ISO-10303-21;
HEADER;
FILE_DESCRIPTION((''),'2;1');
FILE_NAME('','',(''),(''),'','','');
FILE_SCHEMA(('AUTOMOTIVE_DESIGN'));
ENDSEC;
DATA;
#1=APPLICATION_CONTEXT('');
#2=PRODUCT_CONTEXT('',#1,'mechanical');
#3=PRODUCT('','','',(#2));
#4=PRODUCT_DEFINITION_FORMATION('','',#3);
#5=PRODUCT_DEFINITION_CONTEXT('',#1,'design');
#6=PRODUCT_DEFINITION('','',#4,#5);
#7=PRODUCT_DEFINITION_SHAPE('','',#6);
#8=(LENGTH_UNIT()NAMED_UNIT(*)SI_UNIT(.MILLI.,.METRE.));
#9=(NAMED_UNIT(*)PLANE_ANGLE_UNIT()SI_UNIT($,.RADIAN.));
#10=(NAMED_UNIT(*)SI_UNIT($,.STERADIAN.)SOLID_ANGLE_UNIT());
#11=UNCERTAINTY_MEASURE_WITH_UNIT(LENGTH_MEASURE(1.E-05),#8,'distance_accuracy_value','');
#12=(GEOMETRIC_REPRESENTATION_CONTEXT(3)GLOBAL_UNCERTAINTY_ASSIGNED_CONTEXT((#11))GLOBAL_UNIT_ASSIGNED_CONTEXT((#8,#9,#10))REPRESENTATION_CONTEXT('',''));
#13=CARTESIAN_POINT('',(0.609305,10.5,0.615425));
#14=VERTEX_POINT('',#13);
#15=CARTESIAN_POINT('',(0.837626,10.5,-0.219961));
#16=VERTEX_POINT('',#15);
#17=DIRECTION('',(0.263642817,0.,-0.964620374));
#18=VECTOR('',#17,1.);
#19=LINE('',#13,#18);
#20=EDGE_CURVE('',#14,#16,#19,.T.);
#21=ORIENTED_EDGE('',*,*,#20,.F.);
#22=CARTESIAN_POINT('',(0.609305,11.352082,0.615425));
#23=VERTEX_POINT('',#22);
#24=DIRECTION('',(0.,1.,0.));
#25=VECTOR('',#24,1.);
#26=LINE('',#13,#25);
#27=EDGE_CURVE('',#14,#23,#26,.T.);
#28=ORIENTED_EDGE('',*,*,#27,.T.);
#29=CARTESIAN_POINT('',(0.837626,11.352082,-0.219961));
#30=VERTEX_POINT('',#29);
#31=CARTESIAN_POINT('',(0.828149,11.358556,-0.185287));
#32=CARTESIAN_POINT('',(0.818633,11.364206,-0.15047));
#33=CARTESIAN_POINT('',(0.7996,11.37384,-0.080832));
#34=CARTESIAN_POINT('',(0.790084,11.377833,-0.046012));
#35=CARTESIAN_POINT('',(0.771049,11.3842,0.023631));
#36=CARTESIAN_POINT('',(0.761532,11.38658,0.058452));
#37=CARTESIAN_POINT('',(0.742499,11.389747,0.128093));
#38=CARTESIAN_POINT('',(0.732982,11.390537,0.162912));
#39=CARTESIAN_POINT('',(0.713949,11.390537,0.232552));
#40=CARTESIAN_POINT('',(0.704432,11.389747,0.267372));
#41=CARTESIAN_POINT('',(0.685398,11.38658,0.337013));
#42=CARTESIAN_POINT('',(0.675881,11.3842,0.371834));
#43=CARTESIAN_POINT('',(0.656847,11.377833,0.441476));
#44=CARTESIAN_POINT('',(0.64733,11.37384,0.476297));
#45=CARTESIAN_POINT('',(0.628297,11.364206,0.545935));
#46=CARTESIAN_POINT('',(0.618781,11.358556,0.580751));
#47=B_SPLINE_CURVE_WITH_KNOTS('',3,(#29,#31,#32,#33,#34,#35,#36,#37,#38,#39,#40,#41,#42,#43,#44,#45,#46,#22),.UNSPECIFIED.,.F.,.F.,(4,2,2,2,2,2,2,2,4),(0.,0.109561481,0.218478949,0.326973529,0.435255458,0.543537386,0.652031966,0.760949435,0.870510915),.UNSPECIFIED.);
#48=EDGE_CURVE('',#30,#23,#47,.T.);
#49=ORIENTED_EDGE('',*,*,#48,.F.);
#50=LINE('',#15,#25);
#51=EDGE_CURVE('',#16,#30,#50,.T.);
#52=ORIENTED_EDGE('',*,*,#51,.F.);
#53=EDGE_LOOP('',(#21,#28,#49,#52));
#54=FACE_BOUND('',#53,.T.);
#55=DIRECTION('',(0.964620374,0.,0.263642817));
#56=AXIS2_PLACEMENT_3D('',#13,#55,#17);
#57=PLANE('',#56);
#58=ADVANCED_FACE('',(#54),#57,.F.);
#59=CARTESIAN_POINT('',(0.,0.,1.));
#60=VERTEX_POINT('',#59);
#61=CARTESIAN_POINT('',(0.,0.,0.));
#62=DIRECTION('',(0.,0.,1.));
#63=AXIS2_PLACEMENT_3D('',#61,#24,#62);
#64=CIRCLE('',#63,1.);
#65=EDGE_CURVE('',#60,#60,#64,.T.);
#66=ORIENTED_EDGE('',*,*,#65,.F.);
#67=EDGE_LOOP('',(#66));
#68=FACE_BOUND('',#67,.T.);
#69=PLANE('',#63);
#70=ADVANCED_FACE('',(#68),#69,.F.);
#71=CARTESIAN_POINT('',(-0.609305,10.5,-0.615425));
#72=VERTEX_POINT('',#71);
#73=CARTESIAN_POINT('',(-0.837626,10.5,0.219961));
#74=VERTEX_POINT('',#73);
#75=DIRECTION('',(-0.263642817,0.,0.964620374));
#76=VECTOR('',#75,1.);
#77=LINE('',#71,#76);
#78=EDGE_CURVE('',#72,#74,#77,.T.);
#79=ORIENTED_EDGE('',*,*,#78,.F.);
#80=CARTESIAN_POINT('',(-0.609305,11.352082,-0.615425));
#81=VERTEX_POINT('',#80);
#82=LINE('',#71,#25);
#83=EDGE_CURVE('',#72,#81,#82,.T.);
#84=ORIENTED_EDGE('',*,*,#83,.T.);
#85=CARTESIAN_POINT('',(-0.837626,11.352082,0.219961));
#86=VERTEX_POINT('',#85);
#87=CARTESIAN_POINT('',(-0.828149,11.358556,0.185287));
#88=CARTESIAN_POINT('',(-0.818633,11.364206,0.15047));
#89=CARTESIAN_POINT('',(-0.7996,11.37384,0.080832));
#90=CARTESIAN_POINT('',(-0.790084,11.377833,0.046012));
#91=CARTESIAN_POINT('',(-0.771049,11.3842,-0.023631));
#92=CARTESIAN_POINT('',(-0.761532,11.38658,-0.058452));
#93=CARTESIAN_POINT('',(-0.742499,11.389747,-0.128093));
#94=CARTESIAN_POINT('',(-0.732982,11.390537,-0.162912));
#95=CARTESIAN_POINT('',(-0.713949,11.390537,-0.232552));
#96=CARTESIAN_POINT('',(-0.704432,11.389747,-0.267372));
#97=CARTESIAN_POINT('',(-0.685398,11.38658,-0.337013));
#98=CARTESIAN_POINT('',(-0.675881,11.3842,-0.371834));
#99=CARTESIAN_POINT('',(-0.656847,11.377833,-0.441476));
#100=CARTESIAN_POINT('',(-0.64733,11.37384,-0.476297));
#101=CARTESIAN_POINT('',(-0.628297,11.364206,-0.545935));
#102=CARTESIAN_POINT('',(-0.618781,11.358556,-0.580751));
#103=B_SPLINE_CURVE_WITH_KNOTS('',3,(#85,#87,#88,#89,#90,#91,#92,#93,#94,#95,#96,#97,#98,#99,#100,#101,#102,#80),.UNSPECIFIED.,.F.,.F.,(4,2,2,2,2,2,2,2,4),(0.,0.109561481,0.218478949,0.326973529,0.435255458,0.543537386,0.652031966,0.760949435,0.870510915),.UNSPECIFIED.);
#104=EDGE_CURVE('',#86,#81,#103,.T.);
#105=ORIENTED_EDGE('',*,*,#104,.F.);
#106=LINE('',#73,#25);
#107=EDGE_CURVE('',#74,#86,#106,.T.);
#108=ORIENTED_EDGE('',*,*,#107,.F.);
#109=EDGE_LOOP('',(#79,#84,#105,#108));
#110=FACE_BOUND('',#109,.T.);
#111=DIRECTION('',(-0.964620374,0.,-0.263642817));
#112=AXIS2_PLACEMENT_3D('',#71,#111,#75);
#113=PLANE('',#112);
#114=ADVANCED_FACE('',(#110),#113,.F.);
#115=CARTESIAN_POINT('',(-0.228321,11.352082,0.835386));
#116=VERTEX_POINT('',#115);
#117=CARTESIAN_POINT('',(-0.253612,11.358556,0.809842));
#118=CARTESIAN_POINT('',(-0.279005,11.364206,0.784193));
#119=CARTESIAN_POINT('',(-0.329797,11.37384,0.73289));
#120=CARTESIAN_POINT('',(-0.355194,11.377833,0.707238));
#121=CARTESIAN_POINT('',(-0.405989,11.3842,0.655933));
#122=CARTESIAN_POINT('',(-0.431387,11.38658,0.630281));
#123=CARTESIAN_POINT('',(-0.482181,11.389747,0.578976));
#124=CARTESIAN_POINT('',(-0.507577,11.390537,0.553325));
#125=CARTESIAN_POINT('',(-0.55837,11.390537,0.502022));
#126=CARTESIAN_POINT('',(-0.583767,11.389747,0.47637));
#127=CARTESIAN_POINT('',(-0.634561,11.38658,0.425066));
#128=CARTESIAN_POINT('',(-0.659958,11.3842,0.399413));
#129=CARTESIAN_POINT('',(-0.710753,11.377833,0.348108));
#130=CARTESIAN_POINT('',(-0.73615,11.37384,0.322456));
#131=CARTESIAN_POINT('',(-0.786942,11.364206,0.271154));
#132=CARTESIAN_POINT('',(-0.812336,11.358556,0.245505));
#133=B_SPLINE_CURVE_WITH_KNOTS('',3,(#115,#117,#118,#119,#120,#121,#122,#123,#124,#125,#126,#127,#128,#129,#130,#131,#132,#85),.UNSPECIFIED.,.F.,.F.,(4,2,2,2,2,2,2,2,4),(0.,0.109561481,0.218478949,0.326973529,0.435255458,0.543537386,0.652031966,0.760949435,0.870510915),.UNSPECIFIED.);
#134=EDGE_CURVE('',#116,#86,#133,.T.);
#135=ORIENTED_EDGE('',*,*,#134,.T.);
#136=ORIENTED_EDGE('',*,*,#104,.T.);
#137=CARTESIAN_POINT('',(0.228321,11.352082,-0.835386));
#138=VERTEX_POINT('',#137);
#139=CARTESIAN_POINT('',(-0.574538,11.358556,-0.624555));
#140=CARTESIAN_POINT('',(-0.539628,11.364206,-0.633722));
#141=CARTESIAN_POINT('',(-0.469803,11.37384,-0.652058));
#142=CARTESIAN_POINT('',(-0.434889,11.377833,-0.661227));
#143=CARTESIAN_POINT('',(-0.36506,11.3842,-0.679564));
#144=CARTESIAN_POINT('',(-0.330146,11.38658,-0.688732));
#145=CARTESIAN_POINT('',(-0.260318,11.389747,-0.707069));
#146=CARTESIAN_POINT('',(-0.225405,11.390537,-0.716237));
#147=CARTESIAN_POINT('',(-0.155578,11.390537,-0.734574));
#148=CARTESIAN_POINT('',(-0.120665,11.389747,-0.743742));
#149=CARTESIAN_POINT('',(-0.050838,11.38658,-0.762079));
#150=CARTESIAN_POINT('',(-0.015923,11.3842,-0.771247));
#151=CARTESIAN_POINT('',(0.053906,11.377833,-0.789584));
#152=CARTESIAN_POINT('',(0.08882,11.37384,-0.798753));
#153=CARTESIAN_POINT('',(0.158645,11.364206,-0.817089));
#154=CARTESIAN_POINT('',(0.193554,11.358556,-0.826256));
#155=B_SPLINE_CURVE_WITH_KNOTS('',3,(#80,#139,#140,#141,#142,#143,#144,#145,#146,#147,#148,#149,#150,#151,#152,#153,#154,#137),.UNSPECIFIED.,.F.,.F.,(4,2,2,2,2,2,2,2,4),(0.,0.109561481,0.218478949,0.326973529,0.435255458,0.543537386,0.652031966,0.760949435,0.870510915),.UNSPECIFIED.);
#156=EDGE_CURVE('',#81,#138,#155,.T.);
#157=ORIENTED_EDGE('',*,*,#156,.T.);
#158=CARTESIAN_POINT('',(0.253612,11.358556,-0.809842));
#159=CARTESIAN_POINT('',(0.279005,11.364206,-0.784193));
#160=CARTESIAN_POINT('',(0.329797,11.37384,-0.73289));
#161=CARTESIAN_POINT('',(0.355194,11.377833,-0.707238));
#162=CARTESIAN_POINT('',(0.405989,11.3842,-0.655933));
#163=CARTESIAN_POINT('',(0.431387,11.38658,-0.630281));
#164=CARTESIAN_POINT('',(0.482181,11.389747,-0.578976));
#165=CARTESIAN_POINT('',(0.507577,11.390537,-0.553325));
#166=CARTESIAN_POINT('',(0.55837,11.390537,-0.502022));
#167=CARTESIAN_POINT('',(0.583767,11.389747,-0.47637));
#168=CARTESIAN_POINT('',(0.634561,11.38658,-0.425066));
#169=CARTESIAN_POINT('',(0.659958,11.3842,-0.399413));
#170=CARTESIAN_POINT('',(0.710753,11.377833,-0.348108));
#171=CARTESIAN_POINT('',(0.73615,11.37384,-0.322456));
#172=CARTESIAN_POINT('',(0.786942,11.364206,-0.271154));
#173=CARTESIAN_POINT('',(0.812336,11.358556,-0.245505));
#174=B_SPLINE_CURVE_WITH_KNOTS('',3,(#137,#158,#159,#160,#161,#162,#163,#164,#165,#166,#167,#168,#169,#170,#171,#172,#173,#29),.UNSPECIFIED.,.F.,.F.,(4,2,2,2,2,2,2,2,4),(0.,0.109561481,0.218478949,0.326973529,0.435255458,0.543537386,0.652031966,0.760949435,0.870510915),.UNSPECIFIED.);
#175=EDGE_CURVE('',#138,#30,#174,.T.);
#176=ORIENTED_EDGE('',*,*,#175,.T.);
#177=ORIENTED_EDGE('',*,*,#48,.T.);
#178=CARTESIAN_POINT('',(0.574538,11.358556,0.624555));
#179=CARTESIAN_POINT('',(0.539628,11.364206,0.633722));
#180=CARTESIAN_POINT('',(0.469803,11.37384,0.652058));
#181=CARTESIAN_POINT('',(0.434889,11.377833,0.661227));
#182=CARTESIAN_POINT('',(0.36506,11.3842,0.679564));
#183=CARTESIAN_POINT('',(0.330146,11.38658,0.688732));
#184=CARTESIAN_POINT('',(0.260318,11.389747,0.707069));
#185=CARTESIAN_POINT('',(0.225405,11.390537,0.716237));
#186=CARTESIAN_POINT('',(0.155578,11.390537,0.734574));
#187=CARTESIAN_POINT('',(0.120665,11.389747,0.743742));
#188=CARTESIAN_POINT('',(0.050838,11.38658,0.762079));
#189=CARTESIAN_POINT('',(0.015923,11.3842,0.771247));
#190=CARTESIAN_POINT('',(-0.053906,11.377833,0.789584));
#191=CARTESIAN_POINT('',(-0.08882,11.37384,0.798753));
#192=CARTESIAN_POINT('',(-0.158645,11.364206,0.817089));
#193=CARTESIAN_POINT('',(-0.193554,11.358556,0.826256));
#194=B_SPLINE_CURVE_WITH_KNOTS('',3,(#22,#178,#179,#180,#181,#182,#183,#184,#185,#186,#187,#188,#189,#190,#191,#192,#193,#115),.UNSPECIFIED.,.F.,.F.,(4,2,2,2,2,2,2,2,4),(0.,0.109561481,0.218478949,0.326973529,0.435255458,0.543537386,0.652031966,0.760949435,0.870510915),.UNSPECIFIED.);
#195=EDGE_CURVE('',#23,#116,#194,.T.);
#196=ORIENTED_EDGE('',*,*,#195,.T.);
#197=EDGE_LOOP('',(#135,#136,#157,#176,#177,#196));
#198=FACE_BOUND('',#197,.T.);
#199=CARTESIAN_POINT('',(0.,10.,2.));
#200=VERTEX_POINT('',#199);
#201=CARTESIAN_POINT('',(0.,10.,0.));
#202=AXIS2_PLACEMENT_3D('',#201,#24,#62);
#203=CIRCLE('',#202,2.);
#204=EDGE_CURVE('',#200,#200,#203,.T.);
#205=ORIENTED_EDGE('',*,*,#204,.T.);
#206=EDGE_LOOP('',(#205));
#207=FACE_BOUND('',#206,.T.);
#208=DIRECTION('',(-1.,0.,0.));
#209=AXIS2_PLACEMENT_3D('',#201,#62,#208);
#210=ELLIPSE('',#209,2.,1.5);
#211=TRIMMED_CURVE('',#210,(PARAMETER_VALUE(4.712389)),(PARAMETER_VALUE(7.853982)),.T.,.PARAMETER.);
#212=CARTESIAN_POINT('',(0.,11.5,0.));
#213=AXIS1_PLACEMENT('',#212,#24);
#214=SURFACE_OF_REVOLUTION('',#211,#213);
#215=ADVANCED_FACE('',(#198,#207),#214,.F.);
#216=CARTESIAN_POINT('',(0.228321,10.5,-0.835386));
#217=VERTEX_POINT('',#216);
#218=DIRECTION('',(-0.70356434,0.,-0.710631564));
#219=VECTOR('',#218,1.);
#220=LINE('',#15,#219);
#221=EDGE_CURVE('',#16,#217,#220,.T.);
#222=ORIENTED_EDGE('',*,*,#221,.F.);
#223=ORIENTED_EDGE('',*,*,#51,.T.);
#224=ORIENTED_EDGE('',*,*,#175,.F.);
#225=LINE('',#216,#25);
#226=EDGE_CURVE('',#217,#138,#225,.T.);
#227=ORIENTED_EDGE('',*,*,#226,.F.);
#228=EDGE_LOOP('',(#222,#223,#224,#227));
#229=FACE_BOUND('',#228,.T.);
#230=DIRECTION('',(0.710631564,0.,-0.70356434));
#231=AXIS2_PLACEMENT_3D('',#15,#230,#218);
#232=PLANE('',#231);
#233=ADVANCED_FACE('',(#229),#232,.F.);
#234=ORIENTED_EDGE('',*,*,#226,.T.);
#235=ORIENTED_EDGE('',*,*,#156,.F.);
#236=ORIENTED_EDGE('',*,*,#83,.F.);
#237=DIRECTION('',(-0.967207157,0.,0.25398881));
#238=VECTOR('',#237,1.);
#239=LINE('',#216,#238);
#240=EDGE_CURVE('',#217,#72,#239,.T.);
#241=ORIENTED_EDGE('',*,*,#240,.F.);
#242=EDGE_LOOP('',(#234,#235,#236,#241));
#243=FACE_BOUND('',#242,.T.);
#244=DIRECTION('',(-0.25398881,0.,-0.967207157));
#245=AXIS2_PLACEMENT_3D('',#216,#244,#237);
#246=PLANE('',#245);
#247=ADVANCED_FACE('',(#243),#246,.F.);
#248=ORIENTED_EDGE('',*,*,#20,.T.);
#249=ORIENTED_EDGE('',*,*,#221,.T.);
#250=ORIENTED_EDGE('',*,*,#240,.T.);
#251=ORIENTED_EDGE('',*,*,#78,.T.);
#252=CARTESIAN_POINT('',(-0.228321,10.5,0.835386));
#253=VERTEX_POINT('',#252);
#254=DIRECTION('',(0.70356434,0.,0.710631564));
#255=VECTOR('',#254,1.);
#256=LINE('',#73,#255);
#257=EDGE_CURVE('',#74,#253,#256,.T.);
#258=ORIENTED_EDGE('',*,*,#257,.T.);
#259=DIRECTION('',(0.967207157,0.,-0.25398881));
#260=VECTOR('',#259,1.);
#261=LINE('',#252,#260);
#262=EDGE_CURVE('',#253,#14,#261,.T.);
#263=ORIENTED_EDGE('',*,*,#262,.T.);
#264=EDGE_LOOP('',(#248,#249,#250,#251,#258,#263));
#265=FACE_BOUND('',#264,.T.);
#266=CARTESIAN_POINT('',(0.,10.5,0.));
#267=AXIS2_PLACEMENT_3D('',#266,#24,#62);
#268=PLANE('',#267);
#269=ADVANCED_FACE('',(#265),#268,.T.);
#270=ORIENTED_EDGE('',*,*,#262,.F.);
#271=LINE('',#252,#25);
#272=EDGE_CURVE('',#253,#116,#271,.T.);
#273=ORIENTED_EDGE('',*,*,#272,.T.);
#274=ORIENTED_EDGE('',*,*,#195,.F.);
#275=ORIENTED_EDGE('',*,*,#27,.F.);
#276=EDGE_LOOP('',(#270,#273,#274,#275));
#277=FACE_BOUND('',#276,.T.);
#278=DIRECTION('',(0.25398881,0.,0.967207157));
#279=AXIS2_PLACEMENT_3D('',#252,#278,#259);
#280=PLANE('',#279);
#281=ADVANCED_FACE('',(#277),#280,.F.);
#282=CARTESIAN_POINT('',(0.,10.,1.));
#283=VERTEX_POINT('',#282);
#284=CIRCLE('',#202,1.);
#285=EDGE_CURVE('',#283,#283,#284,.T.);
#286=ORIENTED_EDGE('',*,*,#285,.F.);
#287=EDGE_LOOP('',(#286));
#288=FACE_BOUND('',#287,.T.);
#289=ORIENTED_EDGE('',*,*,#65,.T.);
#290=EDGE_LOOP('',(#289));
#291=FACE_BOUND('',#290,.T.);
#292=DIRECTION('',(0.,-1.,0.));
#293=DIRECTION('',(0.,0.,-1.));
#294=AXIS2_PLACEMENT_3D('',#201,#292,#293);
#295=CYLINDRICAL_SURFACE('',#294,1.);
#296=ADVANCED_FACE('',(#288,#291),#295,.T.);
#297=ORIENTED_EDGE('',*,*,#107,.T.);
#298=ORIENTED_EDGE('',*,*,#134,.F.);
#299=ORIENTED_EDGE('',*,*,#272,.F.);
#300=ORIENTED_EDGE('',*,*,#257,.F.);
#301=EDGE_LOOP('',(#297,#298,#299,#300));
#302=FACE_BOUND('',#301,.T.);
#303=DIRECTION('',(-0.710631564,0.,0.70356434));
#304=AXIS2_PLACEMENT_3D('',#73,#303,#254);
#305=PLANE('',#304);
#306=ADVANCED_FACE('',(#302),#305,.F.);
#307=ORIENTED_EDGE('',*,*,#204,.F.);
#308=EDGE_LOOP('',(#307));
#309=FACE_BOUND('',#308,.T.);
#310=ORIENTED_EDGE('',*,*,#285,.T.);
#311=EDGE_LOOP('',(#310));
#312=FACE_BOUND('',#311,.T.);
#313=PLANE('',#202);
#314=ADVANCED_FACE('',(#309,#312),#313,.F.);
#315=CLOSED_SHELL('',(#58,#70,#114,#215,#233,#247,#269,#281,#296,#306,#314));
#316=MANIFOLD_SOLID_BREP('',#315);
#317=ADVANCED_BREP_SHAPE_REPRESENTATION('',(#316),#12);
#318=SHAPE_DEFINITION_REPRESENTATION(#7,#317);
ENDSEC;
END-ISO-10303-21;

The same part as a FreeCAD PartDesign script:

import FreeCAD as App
import Part
import Sketcher

V = App.Vector

doc = App.newDocument("Part")
body = doc.addObject("PartDesign::Body", "Body")

# Sketch on XZ plane
sketch1 = body.newObject("Sketcher::SketchObject", "Sketch")
sketch1.AttachmentSupport = (doc.getObject("XZ_Plane"), [""])
sketch1.MapMode = "FlatFace"
sketch1.addGeometry(Part.Circle(V(0, 0, 0), V(0, 0, 1), 1), False)
sketch1.addConstraint([
    Sketcher.Constraint("Coincident", 0, 3, -1, 1),
    Sketcher.Constraint("Diameter", 0, 2.0),
])
pad1 = body.newObject("PartDesign::Pad", "Pad")
pad1.Profile = sketch1
pad1.Length = 10
pad1.Reversed = True

# Sketch on XZ plane
sketch2 = body.newObject("Sketcher::SketchObject", "Sketch001")
sketch2.AttachmentSupport = (doc.getObject("XZ_Plane"), [""])
sketch2.MapMode = "FlatFace"
sketch2.AttachmentOffset = App.Placement(V(0, 0, -10), App.Rotation())
sketch2.addGeometry(Part.Circle(V(0, 0, 0), V(0, 0, 1), 2), False)
sketch2.addConstraint([
    Sketcher.Constraint("Coincident", 0, 3, -1, 1),
    Sketcher.Constraint("Diameter", 0, 4.0),
])
pad2 = body.newObject("PartDesign::Pad", "Pad001")
pad2.Profile = sketch2
pad2.Length = 1.5
pad2.Reversed = True

# Sketch on XZ plane
sketch3 = body.newObject("Sketcher::SketchObject", "Sketch002")
sketch3.AttachmentSupport = (doc.getObject("XZ_Plane"), [""])
sketch3.MapMode = "FlatFace"
sketch3.AttachmentOffset = App.Placement(V(0, 0, -11.5), App.Rotation())
sketch3.addGeometry([
    Part.LineSegment(V(0.6, 0.6, 0), V(0.8, -0.2, 0)),  # 0
    Part.LineSegment(V(0.8, -0.2, 0), V(0.2, -0.8, 0)),  # 1
    Part.LineSegment(V(0.2, -0.8, 0), V(-0.6, -0.6, 0)),  # 2
    Part.LineSegment(V(-0.6, -0.6, 0), V(-0.8, 0.2, 0)),  # 3
    Part.LineSegment(V(-0.8, 0.2, 0), V(-0.2, 0.8, 0)),  # 4
    Part.LineSegment(V(-0.2, 0.8, 0), V(0.6, 0.6, 0)),  # 5
], False)
sketch3.addConstraint([
    Sketcher.Constraint("Coincident", 0, 2, 1, 1),
    Sketcher.Constraint("Coincident", 1, 2, 2, 1),
    Sketcher.Constraint("Coincident", 2, 2, 3, 1),
    Sketcher.Constraint("Coincident", 3, 2, 4, 1),
    Sketcher.Constraint("Coincident", 4, 2, 5, 1),
    Sketcher.Constraint("Coincident", 5, 2, 0, 1),
    Sketcher.Constraint("Symmetric", 0, 2, 3, 2, -1, 1),
    Sketcher.Constraint("Symmetric", 1, 2, 4, 2, -1, 1),
    Sketcher.Constraint("Symmetric", 2, 2, 5, 2, -1, 1),
    Sketcher.Constraint("Equal", 0, 1),
    Sketcher.Constraint("Equal", 1, 2),
    Sketcher.Constraint("DistanceY", 0, 2, -1, 1, 0.219961),
    Sketcher.Constraint("DistanceX", -1, 1, 1, 2, 0.228321),
    Sketcher.Constraint("DistanceY", 1, 2, 2, 2, 0.219961),
    Sketcher.Constraint("DistanceX", 2, 2, 0, 2, 1.446931),
])
pocket1 = body.newObject("PartDesign::Pocket", "Pocket")
pocket1.Profile = sketch3
pocket1.Length = 1
pocket1.Reversed = True

# Sketch on XY plane
sketch4 = body.newObject("Sketcher::SketchObject", "Sketch003")
sketch4.AttachmentSupport = (doc.getObject("XY_Plane"), [""])
sketch4.MapMode = "FlatFace"
sketch4.addGeometry([
    Part.BSplineCurve([V(-0.5, 11.452369, 0), V(-2, 11.161895, 0), V(-2, 10, 0)], [3, 3], [4.965069236, 6.283185307], False, 2, [1, 0.790569415, 1], False),
    Part.LineSegment(V(-0.5, 11.452369, 0), V(-0.5, 11.5, 0)),
    Part.LineSegment(V(-0.5, 11.5, 0), V(-2, 11.5, 0)),
    Part.LineSegment(V(-2, 11.5, 0), V(-2, 10, 0)),
], False)
sketch4.addConstraint([
    Sketcher.Constraint("Block", 0),
    Sketcher.Constraint("Coincident", 0, 1, 1, 1),
    Sketcher.Constraint("Coincident", 1, 2, 2, 1),
    Sketcher.Constraint("Coincident", 2, 2, 3, 1),
    Sketcher.Constraint("Coincident", 3, 2, 0, 2),
    Sketcher.Constraint("Vertical", 1),
    Sketcher.Constraint("Horizontal", 2),
    Sketcher.Constraint("Vertical", 3),
    Sketcher.Constraint("DistanceY", 3, 2, 3, 1, 1.5),
])
groove = body.newObject("PartDesign::Groove", "Groove")
groove.Profile = sketch4
groove.ReferenceAxis = (sketch4, ["V_Axis"])
groove.Angle = 360

doc.recompute()
